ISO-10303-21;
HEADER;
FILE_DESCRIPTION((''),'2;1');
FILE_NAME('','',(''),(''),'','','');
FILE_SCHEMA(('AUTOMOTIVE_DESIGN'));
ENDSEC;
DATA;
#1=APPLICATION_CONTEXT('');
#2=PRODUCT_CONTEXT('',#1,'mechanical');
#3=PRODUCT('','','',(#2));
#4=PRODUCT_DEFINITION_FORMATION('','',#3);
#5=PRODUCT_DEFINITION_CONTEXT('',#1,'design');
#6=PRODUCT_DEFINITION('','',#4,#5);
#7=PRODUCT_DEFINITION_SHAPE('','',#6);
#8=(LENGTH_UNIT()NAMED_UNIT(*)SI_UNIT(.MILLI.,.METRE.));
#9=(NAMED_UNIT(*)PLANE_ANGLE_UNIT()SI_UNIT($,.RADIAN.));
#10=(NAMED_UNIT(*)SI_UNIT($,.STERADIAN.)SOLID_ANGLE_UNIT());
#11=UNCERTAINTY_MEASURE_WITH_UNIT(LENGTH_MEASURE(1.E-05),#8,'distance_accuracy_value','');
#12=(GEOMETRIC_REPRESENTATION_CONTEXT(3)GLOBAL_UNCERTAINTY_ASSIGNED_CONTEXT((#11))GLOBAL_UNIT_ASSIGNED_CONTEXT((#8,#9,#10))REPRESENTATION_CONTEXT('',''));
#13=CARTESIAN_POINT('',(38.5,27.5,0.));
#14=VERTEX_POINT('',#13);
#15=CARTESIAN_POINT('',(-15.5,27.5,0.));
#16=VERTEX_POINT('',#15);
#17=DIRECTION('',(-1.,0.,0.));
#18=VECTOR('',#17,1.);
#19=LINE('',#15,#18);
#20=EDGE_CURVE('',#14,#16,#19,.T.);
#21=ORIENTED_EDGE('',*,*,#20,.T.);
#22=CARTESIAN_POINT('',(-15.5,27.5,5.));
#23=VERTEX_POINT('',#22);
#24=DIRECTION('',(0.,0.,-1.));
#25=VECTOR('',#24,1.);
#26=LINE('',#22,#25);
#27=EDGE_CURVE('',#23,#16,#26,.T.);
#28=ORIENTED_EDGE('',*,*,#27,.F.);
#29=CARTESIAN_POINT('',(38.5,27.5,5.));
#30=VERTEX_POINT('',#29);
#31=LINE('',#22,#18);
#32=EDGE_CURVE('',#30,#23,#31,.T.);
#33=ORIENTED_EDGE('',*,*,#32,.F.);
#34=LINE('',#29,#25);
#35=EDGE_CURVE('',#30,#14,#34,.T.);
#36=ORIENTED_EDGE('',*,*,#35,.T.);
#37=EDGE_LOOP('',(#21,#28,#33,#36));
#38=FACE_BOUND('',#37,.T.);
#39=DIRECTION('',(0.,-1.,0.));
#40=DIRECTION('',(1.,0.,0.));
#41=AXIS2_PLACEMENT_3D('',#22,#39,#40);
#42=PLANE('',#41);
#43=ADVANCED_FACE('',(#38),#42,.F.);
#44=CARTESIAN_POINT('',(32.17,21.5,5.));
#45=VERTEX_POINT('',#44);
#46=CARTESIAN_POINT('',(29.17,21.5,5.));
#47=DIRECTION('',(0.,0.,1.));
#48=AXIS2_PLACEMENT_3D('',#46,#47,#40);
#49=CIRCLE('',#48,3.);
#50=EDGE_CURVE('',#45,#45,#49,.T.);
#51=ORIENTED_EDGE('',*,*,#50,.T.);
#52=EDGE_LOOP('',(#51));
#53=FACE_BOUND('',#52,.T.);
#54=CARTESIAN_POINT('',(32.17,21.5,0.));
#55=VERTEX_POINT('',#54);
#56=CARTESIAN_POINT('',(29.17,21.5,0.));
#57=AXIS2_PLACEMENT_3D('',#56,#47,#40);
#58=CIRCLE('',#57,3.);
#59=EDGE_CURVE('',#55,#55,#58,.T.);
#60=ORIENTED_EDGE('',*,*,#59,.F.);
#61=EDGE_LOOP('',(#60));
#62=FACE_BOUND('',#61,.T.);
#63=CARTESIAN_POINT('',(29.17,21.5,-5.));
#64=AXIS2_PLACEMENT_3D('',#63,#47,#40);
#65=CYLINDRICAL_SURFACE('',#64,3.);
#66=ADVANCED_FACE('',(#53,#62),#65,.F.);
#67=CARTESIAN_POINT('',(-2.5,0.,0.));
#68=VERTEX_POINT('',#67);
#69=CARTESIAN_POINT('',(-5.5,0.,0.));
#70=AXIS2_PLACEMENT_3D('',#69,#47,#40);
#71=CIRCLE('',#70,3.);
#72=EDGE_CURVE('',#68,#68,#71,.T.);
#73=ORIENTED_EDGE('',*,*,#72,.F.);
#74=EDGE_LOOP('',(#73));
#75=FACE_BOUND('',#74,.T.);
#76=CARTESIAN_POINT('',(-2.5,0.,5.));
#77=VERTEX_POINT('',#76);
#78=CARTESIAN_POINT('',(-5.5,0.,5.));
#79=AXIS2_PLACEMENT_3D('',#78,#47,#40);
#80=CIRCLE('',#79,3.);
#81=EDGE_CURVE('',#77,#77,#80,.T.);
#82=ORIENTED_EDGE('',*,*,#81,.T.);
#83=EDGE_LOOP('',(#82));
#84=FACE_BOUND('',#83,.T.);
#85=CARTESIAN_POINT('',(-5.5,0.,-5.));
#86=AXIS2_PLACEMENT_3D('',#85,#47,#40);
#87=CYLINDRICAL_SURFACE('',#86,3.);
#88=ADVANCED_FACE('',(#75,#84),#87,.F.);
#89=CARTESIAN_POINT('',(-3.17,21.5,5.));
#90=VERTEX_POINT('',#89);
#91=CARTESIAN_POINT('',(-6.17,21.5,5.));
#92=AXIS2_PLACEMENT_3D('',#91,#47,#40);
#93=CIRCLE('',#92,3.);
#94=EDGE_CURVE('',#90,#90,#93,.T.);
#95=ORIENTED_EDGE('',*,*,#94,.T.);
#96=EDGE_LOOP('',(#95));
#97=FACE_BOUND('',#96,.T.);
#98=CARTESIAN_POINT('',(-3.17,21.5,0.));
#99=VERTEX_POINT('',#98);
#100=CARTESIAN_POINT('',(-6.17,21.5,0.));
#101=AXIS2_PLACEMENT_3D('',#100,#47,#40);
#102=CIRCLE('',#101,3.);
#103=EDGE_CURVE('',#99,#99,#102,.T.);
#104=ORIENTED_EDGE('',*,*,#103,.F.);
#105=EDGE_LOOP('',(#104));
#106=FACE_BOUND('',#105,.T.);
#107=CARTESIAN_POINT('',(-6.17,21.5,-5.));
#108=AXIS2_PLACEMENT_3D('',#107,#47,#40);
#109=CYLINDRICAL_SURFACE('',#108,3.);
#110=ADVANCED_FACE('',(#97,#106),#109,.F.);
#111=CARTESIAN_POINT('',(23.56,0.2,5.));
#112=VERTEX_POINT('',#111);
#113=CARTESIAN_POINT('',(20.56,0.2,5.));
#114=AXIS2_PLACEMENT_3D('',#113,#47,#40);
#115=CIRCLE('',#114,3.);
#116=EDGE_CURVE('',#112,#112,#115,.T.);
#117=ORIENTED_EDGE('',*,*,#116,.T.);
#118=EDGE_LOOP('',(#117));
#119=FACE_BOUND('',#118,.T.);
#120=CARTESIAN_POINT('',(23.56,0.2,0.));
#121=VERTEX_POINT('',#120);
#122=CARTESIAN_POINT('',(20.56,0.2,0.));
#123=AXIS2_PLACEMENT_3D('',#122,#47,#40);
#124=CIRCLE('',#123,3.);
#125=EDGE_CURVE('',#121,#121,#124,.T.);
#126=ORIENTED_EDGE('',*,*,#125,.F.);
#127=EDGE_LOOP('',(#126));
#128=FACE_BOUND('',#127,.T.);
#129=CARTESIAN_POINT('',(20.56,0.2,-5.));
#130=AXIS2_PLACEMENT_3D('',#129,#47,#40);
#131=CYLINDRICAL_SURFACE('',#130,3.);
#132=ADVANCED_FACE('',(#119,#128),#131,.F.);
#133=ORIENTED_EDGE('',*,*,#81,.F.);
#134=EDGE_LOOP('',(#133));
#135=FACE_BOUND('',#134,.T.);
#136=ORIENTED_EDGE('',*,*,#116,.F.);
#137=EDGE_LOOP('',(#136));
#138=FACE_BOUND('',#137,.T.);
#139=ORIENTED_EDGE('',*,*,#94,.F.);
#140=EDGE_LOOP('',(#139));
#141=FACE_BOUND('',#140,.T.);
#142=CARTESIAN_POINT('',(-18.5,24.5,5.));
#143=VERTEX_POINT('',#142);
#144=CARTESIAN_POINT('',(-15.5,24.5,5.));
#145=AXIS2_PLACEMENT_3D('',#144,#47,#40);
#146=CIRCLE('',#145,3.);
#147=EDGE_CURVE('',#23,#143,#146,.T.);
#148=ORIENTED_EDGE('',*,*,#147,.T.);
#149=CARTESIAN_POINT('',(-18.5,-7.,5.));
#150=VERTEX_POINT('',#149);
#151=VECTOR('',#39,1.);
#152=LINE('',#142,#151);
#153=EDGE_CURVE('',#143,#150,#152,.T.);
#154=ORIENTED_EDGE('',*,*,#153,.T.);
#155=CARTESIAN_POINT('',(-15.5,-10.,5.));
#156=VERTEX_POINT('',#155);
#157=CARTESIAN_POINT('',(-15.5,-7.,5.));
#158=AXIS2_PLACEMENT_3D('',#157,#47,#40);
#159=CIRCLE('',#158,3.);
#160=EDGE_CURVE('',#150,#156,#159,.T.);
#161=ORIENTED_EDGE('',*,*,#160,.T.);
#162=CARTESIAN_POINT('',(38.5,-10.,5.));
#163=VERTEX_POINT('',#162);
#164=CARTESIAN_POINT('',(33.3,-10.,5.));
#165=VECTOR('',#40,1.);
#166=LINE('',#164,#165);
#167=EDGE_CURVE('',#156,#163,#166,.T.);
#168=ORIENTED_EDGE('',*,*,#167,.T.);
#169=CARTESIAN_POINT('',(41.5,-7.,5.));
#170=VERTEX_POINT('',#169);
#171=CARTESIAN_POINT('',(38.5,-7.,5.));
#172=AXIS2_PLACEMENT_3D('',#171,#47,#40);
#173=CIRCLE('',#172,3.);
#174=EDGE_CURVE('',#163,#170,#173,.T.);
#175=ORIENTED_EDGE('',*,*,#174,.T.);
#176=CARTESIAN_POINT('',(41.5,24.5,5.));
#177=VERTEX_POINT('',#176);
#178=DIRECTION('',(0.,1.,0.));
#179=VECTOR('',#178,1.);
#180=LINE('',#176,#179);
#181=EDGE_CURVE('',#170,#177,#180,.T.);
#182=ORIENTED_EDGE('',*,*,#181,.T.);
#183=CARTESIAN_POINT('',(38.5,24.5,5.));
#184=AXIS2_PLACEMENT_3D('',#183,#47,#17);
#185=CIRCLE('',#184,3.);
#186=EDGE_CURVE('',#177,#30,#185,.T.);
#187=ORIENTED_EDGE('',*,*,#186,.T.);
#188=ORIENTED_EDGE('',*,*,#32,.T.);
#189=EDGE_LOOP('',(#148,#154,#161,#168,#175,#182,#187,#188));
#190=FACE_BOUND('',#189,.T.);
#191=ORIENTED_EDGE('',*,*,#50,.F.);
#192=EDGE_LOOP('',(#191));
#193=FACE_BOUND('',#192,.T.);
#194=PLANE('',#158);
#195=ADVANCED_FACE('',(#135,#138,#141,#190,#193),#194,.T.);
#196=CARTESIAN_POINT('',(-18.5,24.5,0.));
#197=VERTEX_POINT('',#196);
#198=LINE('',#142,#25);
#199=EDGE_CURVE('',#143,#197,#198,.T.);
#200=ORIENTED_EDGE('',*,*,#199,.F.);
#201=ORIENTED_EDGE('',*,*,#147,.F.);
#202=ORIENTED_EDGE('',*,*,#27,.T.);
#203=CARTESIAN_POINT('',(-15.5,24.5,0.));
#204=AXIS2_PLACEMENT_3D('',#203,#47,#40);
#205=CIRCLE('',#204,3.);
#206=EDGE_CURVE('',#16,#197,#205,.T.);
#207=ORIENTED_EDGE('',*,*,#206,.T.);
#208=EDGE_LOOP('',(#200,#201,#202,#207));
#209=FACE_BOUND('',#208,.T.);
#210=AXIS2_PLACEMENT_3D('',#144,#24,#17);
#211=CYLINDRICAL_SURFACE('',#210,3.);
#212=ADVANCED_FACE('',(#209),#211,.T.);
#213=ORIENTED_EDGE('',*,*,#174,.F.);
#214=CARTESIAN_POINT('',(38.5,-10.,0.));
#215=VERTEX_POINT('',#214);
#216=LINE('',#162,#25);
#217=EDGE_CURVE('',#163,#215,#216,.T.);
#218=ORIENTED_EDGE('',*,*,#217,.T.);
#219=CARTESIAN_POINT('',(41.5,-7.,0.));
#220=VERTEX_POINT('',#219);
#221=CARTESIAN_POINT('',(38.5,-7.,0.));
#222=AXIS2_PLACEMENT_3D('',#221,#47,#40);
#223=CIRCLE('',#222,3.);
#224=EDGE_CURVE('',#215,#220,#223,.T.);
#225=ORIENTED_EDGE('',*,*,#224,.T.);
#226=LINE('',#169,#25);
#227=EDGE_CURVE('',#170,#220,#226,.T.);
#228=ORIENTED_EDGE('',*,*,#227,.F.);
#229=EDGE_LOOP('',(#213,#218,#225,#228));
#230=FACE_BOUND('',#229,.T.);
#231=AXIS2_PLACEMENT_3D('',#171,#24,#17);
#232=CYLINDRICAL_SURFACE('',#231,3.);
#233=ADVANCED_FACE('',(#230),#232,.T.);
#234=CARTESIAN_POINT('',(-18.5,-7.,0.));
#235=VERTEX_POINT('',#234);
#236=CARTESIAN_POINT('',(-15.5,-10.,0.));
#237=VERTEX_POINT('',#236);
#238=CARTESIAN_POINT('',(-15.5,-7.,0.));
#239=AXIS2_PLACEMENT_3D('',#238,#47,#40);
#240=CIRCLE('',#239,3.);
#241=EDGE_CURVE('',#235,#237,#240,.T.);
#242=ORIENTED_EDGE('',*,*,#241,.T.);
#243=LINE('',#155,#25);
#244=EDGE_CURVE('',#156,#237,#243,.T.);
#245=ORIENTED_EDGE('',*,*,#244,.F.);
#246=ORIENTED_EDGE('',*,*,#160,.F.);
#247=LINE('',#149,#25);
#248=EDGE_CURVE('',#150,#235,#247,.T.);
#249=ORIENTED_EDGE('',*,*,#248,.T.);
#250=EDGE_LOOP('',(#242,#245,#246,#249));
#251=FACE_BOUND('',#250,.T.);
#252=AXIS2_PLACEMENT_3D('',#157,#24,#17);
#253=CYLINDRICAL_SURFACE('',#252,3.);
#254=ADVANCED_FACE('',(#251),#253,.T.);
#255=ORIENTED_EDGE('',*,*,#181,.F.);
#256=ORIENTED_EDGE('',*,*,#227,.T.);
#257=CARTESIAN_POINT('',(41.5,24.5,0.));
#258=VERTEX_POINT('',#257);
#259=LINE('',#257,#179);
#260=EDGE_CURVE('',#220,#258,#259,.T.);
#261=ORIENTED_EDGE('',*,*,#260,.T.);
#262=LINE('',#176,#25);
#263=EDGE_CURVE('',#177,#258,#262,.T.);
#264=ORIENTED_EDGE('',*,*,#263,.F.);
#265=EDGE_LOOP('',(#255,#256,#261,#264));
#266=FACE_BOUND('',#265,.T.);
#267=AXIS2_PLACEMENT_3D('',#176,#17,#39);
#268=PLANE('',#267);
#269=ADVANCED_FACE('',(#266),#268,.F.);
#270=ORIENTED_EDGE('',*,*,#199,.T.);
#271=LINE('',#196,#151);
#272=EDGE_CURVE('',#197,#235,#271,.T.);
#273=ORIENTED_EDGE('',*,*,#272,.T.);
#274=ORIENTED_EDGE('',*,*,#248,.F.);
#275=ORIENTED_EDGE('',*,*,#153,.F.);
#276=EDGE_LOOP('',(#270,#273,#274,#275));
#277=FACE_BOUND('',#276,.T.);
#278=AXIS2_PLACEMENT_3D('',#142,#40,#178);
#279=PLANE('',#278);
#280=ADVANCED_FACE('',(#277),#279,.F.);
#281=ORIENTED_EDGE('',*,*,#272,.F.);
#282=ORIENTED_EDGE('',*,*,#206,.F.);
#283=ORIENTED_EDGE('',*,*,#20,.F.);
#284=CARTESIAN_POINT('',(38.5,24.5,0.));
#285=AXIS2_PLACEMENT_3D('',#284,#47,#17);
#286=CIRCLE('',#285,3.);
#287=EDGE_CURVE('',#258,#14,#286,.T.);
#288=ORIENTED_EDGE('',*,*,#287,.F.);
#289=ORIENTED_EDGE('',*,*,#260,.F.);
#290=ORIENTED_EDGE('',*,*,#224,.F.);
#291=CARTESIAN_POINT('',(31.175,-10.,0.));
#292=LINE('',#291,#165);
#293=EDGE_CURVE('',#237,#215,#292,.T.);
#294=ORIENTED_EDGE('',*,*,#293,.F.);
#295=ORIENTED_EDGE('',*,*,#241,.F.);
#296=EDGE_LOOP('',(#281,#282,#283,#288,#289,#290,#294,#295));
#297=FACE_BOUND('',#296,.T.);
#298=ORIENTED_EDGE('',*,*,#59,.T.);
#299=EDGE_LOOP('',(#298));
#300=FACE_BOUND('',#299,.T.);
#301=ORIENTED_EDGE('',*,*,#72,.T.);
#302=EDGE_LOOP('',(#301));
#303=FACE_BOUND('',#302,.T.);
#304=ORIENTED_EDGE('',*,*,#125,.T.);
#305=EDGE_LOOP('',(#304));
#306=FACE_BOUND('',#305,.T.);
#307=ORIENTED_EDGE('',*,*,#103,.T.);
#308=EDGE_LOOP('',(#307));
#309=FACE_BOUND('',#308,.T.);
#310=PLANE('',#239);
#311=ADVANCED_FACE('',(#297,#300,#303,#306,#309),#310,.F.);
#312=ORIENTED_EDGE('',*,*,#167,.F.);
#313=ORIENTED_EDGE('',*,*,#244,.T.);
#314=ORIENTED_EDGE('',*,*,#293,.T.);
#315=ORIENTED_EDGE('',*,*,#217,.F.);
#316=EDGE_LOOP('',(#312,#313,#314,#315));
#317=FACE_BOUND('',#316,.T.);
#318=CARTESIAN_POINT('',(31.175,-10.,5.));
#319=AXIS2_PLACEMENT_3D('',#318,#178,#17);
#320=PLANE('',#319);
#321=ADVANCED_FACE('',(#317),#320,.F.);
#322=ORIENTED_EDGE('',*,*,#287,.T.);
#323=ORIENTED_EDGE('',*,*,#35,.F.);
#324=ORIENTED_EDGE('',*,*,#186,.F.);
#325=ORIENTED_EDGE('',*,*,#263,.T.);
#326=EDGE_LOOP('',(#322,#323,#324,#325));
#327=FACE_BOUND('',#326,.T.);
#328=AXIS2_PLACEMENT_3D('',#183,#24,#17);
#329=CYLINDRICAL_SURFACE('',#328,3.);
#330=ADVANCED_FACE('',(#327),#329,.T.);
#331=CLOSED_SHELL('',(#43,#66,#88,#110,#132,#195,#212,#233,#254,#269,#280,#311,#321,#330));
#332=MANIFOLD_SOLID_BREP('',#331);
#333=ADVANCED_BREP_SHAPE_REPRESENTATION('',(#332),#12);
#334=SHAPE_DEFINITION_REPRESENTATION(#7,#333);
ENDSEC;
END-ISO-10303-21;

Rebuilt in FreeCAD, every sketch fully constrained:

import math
import FreeCAD as App
import Part
import Sketcher
from FreeCAD import Vector

doc = App.newDocument("Part")
body = doc.addObject("PartDesign::Body", "Body")

# Sketch on XY plane
sketch1 = body.newObject("Sketcher::SketchObject", "Sketch")
sketch1.AttachmentSupport = (doc.getObject("XY_Plane"), [""])
sketch1.MapMode = "FlatFace"
sketch1.addGeometry([
    Part.LineSegment(Vector(38.5, 27.5, 0), Vector(-15.5, 27.5, 0)),  # 0
    Part.ArcOfCircle(Part.Circle(Vector(-15.5, 24.5, 0), Vector(0, 0, 1), 3), math.radians(90), math.radians(180)),  # 1
    Part.LineSegment(Vector(-18.5, 24.5, 0), Vector(-18.5, -7, 0)),  # 2
    Part.ArcOfCircle(Part.Circle(Vector(-15.5, -7, 0), Vector(0, 0, 1), 3), math.radians(180), math.radians(270)),  # 3
    Part.LineSegment(Vector(-15.5, -10, 0), Vector(38.5, -10, 0)),  # 4
    Part.ArcOfCircle(Part.Circle(Vector(38.5, -7, 0), Vector(0, 0, 1), 3), math.radians(-90), math.radians(0)),  # 5
    Part.LineSegment(Vector(41.5, -7, 0), Vector(41.5, 24.5, 0)),  # 6
    Part.ArcOfCircle(Part.Circle(Vector(38.5, 24.5, 0), Vector(0, 0, 1), 3), math.radians(0), math.radians(90)),  # 7
], False)
sketch1.addConstraint([
    Sketcher.Constraint("Tangent", 0, 2, 1, 1),
    Sketcher.Constraint("Tangent", 1, 2, 2, 1),
    Sketcher.Constraint("Tangent", 2, 2, 3, 1),
    Sketcher.Constraint("Tangent", 3, 2, 4, 1),
    Sketcher.Constraint("Tangent", 4, 2, 5, 1),
    Sketcher.Constraint("Tangent", 5, 2, 6, 1),
    Sketcher.Constraint("Tangent", 6, 2, 7, 1),
    Sketcher.Constraint("Tangent", 7, 2, 0, 1),
    Sketcher.Constraint("Horizontal", 0),
    Sketcher.Constraint("Vertical", 2),
    Sketcher.Constraint("Horizontal", 4),
    Sketcher.Constraint("Vertical", 6),
    Sketcher.Constraint("Equal", 1, 3),
    Sketcher.Constraint("Equal", 3, 5),
    Sketcher.Constraint("Equal", 5, 7),
    Sketcher.Constraint("Radius", 1, 3.0),
    Sketcher.Constraint("DistanceX", 0, 2, 0, 1, 54.0),
    Sketcher.Constraint("DistanceY", 2, 2, 2, 1, 31.5),
    Sketcher.Constraint("DistanceY", 3, 3, -1, 1, 7.0),
    Sketcher.Constraint("DistanceX", 1, 3, -1, 1, 15.5),
])
pad1 = body.newObject("PartDesign::Pad", "Pad")
pad1.Profile = sketch1
pad1.Length = 5

# Sketch on XY plane
sketch2 = body.newObject("Sketcher::SketchObject", "Sketch001")
sketch2.AttachmentSupport = (doc.getObject("XY_Plane"), [""])
sketch2.MapMode = "FlatFace"
sketch2.AttachmentOffset = App.Placement(Vector(0, 0, 5), App.Rotation())
sketch2.addGeometry([
    Part.Circle(Vector(-6.17, 21.5, 0), Vector(0, 0, 1), 3),
    Part.Circle(Vector(29.17, 21.5, 0), Vector(0, 0, 1), 3),
], False)
sketch2.addConstraint([
    Sketcher.Constraint("Equal", 0, 1),
    Sketcher.Constraint("Horizontal", 0, 3, 1, 3),
    Sketcher.Constraint("Diameter", 0, 6.0),
    Sketcher.Constraint("DistanceY", -1, 1, 0, 3, 21.5),
    Sketcher.Constraint("DistanceX", 0, 3, -1, 1, 6.17),
    Sketcher.Constraint("DistanceX", -1, 1, 1, 3, 29.17),
])
pocket1 = body.newObject("PartDesign::Pocket", "Pocket")
pocket1.Profile = sketch2
pocket1.Length = 10

# Sketch on XY plane
sketch3 = body.newObject("Sketcher::SketchObject", "Sketch002")
sketch3.AttachmentSupport = (doc.getObject("XY_Plane"), [""])
sketch3.MapMode = "FlatFace"
sketch3.AttachmentOffset = App.Placement(Vector(0, 0, 5), App.Rotation())
sketch3.addGeometry(Part.Circle(Vector(-5.5, 0, 0), Vector(0, 0, 1), 3), False)
sketch3.addConstraint([
    Sketcher.Constraint("PointOnObject", 0, 3, -1),
    Sketcher.Constraint("Diameter", 0, 6.0),
    Sketcher.Constraint("DistanceX", 0, 3, -1, 1, 5.5),
])
pocket2 = body.newObject("PartDesign::Pocket", "Pocket001")
pocket2.Profile = sketch3
pocket2.Length = 10

# Sketch on XY plane
sketch4 = body.newObject("Sketcher::SketchObject", "Sketch003")
sketch4.AttachmentSupport = (doc.getObject("XY_Plane"), [""])
sketch4.MapMode = "FlatFace"
sketch4.AttachmentOffset = App.Placement(Vector(0, 0, 5), App.Rotation())
sketch4.addGeometry(Part.Circle(Vector(20.56, 0.2, 0), Vector(0, 0, 1), 3), False)
sketch4.addConstraint([
    Sketcher.Constraint("Diameter", 0, 6.0),
    Sketcher.Constraint("DistanceY", -1, 1, 0, 3, 0.2),
    Sketcher.Constraint("DistanceX", -1, 1, 0, 3, 20.56),
])
pocket3 = body.newObject("PartDesign::Pocket", "Pocket002")
pocket3.Profile = sketch4
pocket3.Length = 10

doc.recompute()
